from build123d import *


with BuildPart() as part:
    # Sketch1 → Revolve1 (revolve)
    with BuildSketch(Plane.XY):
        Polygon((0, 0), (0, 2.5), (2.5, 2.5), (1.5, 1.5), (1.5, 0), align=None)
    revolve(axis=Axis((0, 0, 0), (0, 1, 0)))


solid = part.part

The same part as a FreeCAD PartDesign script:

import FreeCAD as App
import Part
import Sketcher

doc = App.newDocument("Part")
body = doc.addObject("PartDesign::Body", "Body")

# Sketch on XY plane
sketch1 = body.newObject("Sketcher::SketchObject", "Sketch")
sketch1.AttachmentSupport = (doc.getObject("XY_Plane"), [""])
sketch1.MapMode = "FlatFace"
sketch1.addGeometry([
    Part.LineSegment(App.Vector(0, 2.5, 0), App.Vector(0, 0, 0)),  # 0
    Part.LineSegment(App.Vector(0, 0, 0), App.Vector(1.5, 0, 0)),  # 1
    Part.LineSegment(App.Vector(1.5, 0, 0), App.Vector(1.5, 1.5, 0)),  # 2
    Part.LineSegment(App.Vector(1.5, 1.5, 0), App.Vector(2.5, 2.5, 0)),  # 3
    Part.LineSegment(App.Vector(2.5, 2.5, 0), App.Vector(0, 2.5, 0)),  # 4
], False)
sketch1.addConstraint([
    Sketcher.Constraint("Coincident", 0, 2, 1, 1),
    Sketcher.Constraint("Coincident", 1, 2, 2, 1),
    Sketcher.Constraint("Coincident", 2, 2, 3, 1),
    Sketcher.Constraint("Coincident", 3, 2, 4, 1),
    Sketcher.Constraint("Coincident", 4, 2, 0, 1),
    Sketcher.Constraint("Vertical", 0),
    Sketcher.Constraint("Horizontal", 1),
    Sketcher.Constraint("Vertical", 2),
    Sketcher.Constraint("Horizontal", 4),
    Sketcher.Constraint("Coincident", 0, 2, -1, 1),
    Sketcher.Constraint("Equal", 4, 0),
    Sketcher.Constraint("Equal", 1, 2),
    Sketcher.Constraint("DistanceX", 1, 1, 1, 2, 1.5),
    Sketcher.Constraint("DistanceX", 4, 2, 4, 1, 2.5),
])
revolution = body.newObject("PartDesign::Revolution", "Revolution")
revolution.Profile = sketch1
revolution.ReferenceAxis = (sketch1, ["V_Axis"])
revolution.Angle = 360

doc.recompute()
